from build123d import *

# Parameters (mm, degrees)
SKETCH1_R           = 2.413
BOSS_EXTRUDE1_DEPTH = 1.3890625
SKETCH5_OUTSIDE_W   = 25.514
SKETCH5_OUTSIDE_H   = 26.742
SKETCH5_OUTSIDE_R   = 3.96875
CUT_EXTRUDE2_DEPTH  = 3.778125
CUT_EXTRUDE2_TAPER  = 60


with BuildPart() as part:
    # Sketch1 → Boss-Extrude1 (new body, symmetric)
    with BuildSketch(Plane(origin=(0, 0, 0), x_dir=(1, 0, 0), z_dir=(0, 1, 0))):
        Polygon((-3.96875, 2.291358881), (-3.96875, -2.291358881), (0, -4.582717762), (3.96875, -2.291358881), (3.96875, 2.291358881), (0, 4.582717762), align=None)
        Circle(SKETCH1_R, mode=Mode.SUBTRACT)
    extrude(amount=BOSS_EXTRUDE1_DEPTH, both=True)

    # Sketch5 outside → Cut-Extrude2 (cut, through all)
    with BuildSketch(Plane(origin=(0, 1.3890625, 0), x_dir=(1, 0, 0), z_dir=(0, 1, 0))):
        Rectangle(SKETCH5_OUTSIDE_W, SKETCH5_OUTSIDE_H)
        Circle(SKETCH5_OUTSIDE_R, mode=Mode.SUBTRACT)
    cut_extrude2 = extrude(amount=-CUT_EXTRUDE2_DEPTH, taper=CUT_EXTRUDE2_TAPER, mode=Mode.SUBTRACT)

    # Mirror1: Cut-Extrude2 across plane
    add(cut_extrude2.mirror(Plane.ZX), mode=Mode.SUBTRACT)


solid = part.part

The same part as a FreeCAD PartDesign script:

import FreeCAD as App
import Part
import Sketcher

V = App.Vector
Q = App.Units.Quantity

doc = App.newDocument("Part")
body = doc.addObject("PartDesign::Body", "Body")

# Sketch on XZ plane
sketch1 = body.newObject("Sketcher::SketchObject", "Sketch")
sketch1.AttachmentSupport = (doc.getObject("XZ_Plane"), [""])
sketch1.MapMode = "FlatFace"
sketch1.addGeometry(Part.LineSegment(V(-3.96875, -2.291359, 0), V(-3.96875, 2.291359, 0)), False)
sketch1.addGeometry(Part.LineSegment(V(-3.96875, 2.291359, 0), V(0, 4.582718, 0)), False)
sketch1.addGeometry(Part.LineSegment(V(0, 4.582718, 0), V(3.96875, 2.291359, 0)), False)
sketch1.addGeometry(Part.LineSegment(V(3.96875, 2.291359, 0), V(3.96875, -2.291359, 0)), False)
sketch1.addGeometry(Part.LineSegment(V(3.96875, -2.291359, 0), V(0, -4.582718, 0)), False)
sketch1.addGeometry(Part.LineSegment(V(0, -4.582718, 0), V(-3.96875, -2.291359, 0)), False)
sketch1.addGeometry(Part.Circle(V(0, 0, 0), V(0, 0, 1), 2.413), False)
sketch1.addConstraint(Sketcher.Constraint("Coincident", 0, 2, 1, 1))
sketch1.addConstraint(Sketcher.Constraint("Coincident", 1, 2, 2, 1))
sketch1.addConstraint(Sketcher.Constraint("Coincident", 2, 2, 3, 1))
sketch1.addConstraint(Sketcher.Constraint("Coincident", 3, 2, 4, 1))
sketch1.addConstraint(Sketcher.Constraint("Coincident", 4, 2, 5, 1))
sketch1.addConstraint(Sketcher.Constraint("Coincident", 5, 2, 0, 1))
sketch1.addConstraint(Sketcher.Constraint("Vertical", 0))
sketch1.addConstraint(Sketcher.Constraint("Vertical", 3))
sketch1.addConstraint(Sketcher.Constraint("Coincident", 6, 3, -1, 1))
sketch1.addConstraint(Sketcher.Constraint("Symmetric", 0, 2, 3, 2, -1, 1))
sketch1.addConstraint(Sketcher.Constraint("Symmetric", 1, 2, 4, 2, -1, 1))
sketch1.addConstraint(Sketcher.Constraint("PointOnObject", 1, 2, -2))
sketch1.addConstraint(Sketcher.Constraint("Parallel", 2, 5))
sketch1.addConstraint(Sketcher.Constraint("Horizontal", 0, 2, 2, 2))
sketch1.addConstraint(Sketcher.Constraint("Diameter", 6, Q("0.19 in")))
sketch1.addConstraint(Sketcher.Constraint("Angle", 1, Q("30 deg")))
sketch1.addConstraint(Sketcher.Constraint("DistanceX", 0, 2, -1, 1, Q("0.15625 in")))
sketch1.addConstraint(Sketcher.Constraint("DistanceY", 0, 1, 0, 2, Q("4.582718 mm")))
pad1 = body.newObject("PartDesign::Pad", "Pad")
pad1.Profile = sketch1
pad1.Length = Q("0.109375 in")
pad1.Midplane = True

# Sketch on XZ plane
sketch2 = body.newObject("Sketcher::SketchObject", "Sketch001")
sketch2.AttachmentSupport = (doc.getObject("XZ_Plane"), [""])
sketch2.MapMode = "FlatFace"
sketch2.AttachmentOffset = App.Placement(V(0, 0, -1.389063), App.Rotation())
sketch2.addGeometry(Part.LineSegment(V(-12.757, -13.371, 0), V(-12.757, 13.371, 0)), False)
sketch2.addGeometry(Part.LineSegment(V(-12.757, 13.371, 0), V(12.757, 13.371, 0)), False)
sketch2.addGeometry(Part.LineSegment(V(12.757, 13.371, 0), V(12.757, -13.371, 0)), False)
sketch2.addGeometry(Part.LineSegment(V(12.757, -13.371, 0), V(-12.757, -13.371, 0)), False)
sketch2.addGeometry(Part.Circle(V(0, 0, 0), V(0, 0, 1), 3.96875), False)
sketch2.addConstraint(Sketcher.Constraint("Coincident", 0, 2, 1, 1))
sketch2.addConstraint(Sketcher.Constraint("Coincident", 1, 2, 2, 1))
sketch2.addConstraint(Sketcher.Constraint("Coincident", 2, 2, 3, 1))
sketch2.addConstraint(Sketcher.Constraint("Coincident", 3, 2, 0, 1))
sketch2.addConstraint(Sketcher.Constraint("Vertical", 0))
sketch2.addConstraint(Sketcher.Constraint("Horizontal", 1))
sketch2.addConstraint(Sketcher.Constraint("Vertical", 2))
sketch2.addConstraint(Sketcher.Constraint("Horizontal", 3))
sketch2.addConstraint(Sketcher.Constraint("Coincident", 4, 3, -1, 1))
sketch2.addConstraint(Sketcher.Constraint("Symmetric", 0, 2, 2, 2, -1, 1))
sketch2.addConstraint(Sketcher.Constraint("Diameter", 4, Q("0.3125 in")))
sketch2.addConstraint(Sketcher.Constraint("DistanceX", 1, 1, 1, 2, Q("25.514 mm")))
sketch2.addConstraint(Sketcher.Constraint("DistanceY", 0, 1, 0, 2, Q("26.742 mm")))
pocket1 = body.newObject("PartDesign::Pocket", "Pocket")
pocket1.Profile = sketch2
pocket1.Length = 3.778125
pocket1.Reversed = True
pocket1.TaperAngle = 60
doc.recompute()

mirrored = body.newObject("PartDesign::Mirrored", "Mirrored")
mirrored.Originals = [pocket1]
mirrored.MirrorPlane = (doc.getObject("XZ_Plane"), [""])
body.Tip = mirrored

doc.recompute()
